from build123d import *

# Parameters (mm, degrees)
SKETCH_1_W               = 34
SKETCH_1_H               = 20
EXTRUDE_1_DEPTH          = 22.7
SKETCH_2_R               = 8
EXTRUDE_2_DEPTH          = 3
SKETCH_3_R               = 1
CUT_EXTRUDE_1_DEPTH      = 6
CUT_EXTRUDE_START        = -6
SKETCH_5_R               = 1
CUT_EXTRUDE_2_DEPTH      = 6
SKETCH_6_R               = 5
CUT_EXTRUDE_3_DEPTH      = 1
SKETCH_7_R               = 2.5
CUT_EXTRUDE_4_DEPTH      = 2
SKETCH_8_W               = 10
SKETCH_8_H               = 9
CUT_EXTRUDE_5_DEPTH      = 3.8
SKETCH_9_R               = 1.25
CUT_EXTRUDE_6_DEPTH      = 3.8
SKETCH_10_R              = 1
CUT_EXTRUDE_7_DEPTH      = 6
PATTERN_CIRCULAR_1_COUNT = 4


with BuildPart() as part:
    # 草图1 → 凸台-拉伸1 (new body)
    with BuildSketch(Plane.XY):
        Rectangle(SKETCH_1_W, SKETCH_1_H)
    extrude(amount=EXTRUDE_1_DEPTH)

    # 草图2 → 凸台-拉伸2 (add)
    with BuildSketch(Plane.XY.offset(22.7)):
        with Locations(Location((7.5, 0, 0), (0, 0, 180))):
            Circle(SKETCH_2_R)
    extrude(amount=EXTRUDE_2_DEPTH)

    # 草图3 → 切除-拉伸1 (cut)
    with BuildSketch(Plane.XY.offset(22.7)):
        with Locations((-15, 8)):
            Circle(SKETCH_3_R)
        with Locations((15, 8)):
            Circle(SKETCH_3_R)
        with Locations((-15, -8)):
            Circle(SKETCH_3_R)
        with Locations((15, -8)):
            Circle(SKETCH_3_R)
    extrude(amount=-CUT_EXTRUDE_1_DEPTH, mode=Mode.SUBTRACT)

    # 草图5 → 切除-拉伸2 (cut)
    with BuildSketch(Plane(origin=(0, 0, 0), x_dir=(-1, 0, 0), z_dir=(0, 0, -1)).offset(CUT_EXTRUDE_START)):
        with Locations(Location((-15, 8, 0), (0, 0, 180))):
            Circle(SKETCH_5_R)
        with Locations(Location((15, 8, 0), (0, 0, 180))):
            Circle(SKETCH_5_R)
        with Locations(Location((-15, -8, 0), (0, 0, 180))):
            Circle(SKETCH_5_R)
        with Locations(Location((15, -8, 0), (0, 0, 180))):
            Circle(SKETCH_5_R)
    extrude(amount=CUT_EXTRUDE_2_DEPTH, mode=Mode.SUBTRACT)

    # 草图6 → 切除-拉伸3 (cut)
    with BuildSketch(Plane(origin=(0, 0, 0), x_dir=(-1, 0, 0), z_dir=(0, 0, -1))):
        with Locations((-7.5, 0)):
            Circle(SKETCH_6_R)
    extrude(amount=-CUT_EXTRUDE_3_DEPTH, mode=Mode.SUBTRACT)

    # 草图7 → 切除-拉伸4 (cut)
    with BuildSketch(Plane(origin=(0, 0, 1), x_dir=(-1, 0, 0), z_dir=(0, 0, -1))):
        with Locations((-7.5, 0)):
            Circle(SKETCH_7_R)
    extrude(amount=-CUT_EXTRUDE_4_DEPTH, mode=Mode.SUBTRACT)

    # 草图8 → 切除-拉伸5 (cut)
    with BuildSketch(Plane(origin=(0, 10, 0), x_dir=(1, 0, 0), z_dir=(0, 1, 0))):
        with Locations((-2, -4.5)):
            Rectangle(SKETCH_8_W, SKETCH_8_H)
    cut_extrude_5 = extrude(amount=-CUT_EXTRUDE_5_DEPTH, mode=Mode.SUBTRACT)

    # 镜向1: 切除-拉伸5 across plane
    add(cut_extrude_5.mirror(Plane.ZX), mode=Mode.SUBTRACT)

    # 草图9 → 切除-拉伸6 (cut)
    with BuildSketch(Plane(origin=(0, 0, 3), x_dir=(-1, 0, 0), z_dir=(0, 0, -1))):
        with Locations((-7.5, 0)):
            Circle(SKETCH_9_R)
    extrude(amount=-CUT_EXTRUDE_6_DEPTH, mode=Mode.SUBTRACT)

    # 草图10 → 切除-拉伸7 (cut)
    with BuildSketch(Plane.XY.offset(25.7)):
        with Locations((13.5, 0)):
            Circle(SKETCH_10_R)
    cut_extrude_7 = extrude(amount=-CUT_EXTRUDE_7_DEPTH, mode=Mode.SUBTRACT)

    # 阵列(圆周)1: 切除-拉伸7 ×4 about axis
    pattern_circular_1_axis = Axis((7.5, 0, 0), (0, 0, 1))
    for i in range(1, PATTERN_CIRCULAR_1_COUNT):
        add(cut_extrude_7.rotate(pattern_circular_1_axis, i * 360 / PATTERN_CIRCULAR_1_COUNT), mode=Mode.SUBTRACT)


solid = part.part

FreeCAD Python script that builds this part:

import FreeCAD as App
import Part
import Sketcher
Q = App.Units.Quantity


def add_polygon(sketch, points):
    """Adds a closed chain of lines whose ends are joined by coincident constraints."""
    first, n = sketch.GeometryCount, len(points)
    for a, b in zip(points, points[1:] + points[:1]):
        sketch.addGeometry(Part.LineSegment(App.Vector(*a, 0), App.Vector(*b, 0)), False)
    for i in range(n):
        sketch.addConstraint(Sketcher.Constraint("Coincident", first + i, 2, first + (i + 1) % n, 1))

doc = App.newDocument("Part")
body = doc.addObject("PartDesign::Body", "Body")

# Sketch on XY plane
sketch1 = body.newObject("Sketcher::SketchObject", "Sketch")
sketch1.AttachmentSupport = (doc.getObject("XY_Plane"), [""])
sketch1.MapMode = "FlatFace"
add_polygon(sketch1, [(-17, 10), (-17, -10), (17, -10), (17, 10)])  # lines 0-3
sketch1.addConstraint([
    Sketcher.Constraint("Vertical", 0),
    Sketcher.Constraint("Horizontal", 1),
    Sketcher.Constraint("Vertical", 2),
    Sketcher.Constraint("Horizontal", 3),
    Sketcher.Constraint("Symmetric", 0, 2, 2, 2, -1, 1),
    Sketcher.Constraint("DistanceX", 1, 1, 1, 2, Q("34 mm")),
    Sketcher.Constraint("DistanceY", 0, 2, 0, 1, Q("20 mm")),
])
pad1 = body.newObject("PartDesign::Pad", "Pad")
pad1.Profile = sketch1
pad1.Length = 22.7

# Sketch on XY plane
sketch2 = body.newObject("Sketcher::SketchObject", "Sketch001")
sketch2.AttachmentSupport = (doc.getObject("XY_Plane"), [""])
sketch2.MapMode = "FlatFace"
sketch2.AttachmentOffset = App.Placement(App.Vector(0, 0, 22.7), App.Rotation())
sketch2.addGeometry(Part.Circle(App.Vector(8, 0, 0), App.Vector(0, 0, 1), 8), False)
sketch2.addConstraint([
    Sketcher.Constraint("PointOnObject", 0, 3, -1),
    Sketcher.Constraint("Diameter", 0, Q("16 mm")),
    Sketcher.Constraint("DistanceX", -1, 1, 0, 3, Q("7.5 mm")),
])
pad2 = body.newObject("PartDesign::Pad", "Pad001")
pad2.Profile = sketch2
pad2.Length = 3

# Sketch on XY plane
sketch3 = body.newObject("Sketcher::SketchObject", "Sketch002")
sketch3.AttachmentSupport = (doc.getObject("XY_Plane"), [""])
sketch3.MapMode = "FlatFace"
sketch3.AttachmentOffset = App.Placement(App.Vector(0, 0, 22.7), App.Rotation())
sketch3.addGeometry([
    Part.Circle(App.Vector(-15, 8, 0), App.Vector(0, 0, 1), 1),
    Part.Circle(App.Vector(15, 8, 0), App.Vector(0, 0, 1), 1),
    Part.Circle(App.Vector(-15, -8, 0), App.Vector(0, 0, 1), 1),
    Part.Circle(App.Vector(15, -8, 0), App.Vector(0, 0, 1), 1),
], False)
sketch3.addConstraint([
    Sketcher.Constraint("Equal", 0, 1),
    Sketcher.Constraint("Equal", 1, 2),
    Sketcher.Constraint("Equal", 2, 3),
    Sketcher.Constraint("Symmetric", 1, 3, 2, 3, -1, 1),
    Sketcher.Constraint("Symmetric", 0, 3, 3, 3, -1, 1),
    Sketcher.Constraint("Symmetric", 0, 3, 1, 3, -2),
    Sketcher.Constraint("Diameter", 0, Q("2 mm")),
    Sketcher.Constraint("DistanceX", 0, 3, -1, 1, Q("15 mm")),
    Sketcher.Constraint("DistanceY", -1, 1, 0, 3, Q("8 mm")),
])
pocket1 = body.newObject("PartDesign::Pocket", "Pocket")
pocket1.Profile = sketch3
pocket1.Length = 6

# Sketch on XY plane
sketch4 = body.newObject("Sketcher::SketchObject", "Sketch003")
sketch4.AttachmentSupport = (doc.getObject("XY_Plane"), [""])
sketch4.MapMode = "FlatFace"
sketch4.AttachmentOffset = App.Placement(App.Vector(0, 0, 6), App.Rotation())
sketch4.addGeometry([
    Part.Circle(App.Vector(15, 8, 0), App.Vector(0, 0, 1), 1),
    Part.Circle(App.Vector(-15, 8, 0), App.Vector(0, 0, 1), 1),
    Part.Circle(App.Vector(15, -8, 0), App.Vector(0, 0, 1), 1),
    Part.Circle(App.Vector(-15, -8, 0), App.Vector(0, 0, 1), 1),
], False)
sketch4.addConstraint([
    Sketcher.Constraint("Equal", 0, 1),
    Sketcher.Constraint("Equal", 1, 2),
    Sketcher.Constraint("Equal", 2, 3),
    Sketcher.Constraint("Symmetric", 1, 3, 2, 3, -1, 1),
    Sketcher.Constraint("Symmetric", 0, 3, 3, 3, -1, 1),
    Sketcher.Constraint("Symmetric", 0, 3, 1, 3, -2),
    Sketcher.Constraint("Diameter", 0, Q("2 mm")),
    Sketcher.Constraint("DistanceX", -1, 1, 0, 3, Q("15 mm")),
    Sketcher.Constraint("DistanceY", -1, 1, 0, 3, Q("8 mm")),
])
pocket2 = body.newObject("PartDesign::Pocket", "Pocket001")
pocket2.Profile = sketch4
pocket2.Length = 6

# Sketch on XY plane
sketch5 = body.newObject("Sketcher::SketchObject", "Sketch004")
sketch5.AttachmentSupport = (doc.getObject("XY_Plane"), [""])
sketch5.MapMode = "FlatFace"
sketch5.addGeometry(Part.Circle(App.Vector(8, 0, 0), App.Vector(0, 0, 1), 5), False)
sketch5.addConstraint([
    Sketcher.Constraint("PointOnObject", 0, 3, -1),
    Sketcher.Constraint("Diameter", 0, Q("10 mm")),
    Sketcher.Constraint("DistanceX", -1, 1, 0, 3, Q("7.5 mm")),
])
pocket3 = body.newObject("PartDesign::Pocket", "Pocket002")
pocket3.Profile = sketch5
pocket3.Length = 1
pocket3.Reversed = True

# Sketch on XY plane
sketch6 = body.newObject("Sketcher::SketchObject", "Sketch005")
sketch6.AttachmentSupport = (doc.getObject("XY_Plane"), [""])
sketch6.MapMode = "FlatFace"
sketch6.AttachmentOffset = App.Placement(App.Vector(0, 0, 1), App.Rotation())
sketch6.addGeometry(Part.Circle(App.Vector(7.5, 0, 0), App.Vector(0, 0, 1), 2.5), False)
sketch6.addConstraint([
    Sketcher.Constraint("PointOnObject", 0, 3, -1),
    Sketcher.Constraint("Diameter", 0, Q("5 mm")),
    Sketcher.Constraint("DistanceX", -1, 1, 0, 3, Q("7.5 mm")),
])
pocket4 = body.newObject("PartDesign::Pocket", "Pocket003")
pocket4.Profile = sketch6
pocket4.Length = 2
pocket4.Reversed = True

# Sketch on XZ plane
sketch7 = body.newObject("Sketcher::SketchObject", "Sketch006")
sketch7.AttachmentSupport = (doc.getObject("XZ_Plane"), [""])
sketch7.MapMode = "FlatFace"
sketch7.AttachmentOffset = App.Placement(App.Vector(0, 0, -10), App.Rotation())
add_polygon(sketch7, [(-7, 0), (-7, 9), (3, 9), (3, 0)])  # lines 0-3
sketch7.addConstraint([
    Sketcher.Constraint("Vertical", 0),
    Sketcher.Constraint("Horizontal", 1),
    Sketcher.Constraint("Vertical", 2),
    Sketcher.Constraint("Horizontal", 3),
    Sketcher.Constraint("PointOnObject", 2, 2, -1),
    Sketcher.Constraint("DistanceX", 1, 1, 1, 2, Q("10 mm")),
    Sketcher.Constraint("DistanceY", 0, 1, 0, 2, Q("9 mm")),
    Sketcher.Constraint("DistanceX", 0, 2, -1, 1, Q("7 mm")),
])
pocket5 = body.newObject("PartDesign::Pocket", "Pocket004")
pocket5.Profile = sketch7
pocket5.Length = 3.8
pocket5.Reversed = True
doc.recompute()

mirrored = body.newObject("PartDesign::Mirrored", "Mirrored")
mirrored.Originals = [pocket5]
mirrored.MirrorPlane = (doc.getObject("XZ_Plane"), [""])
body.Tip = mirrored

# Sketch on XY plane
sketch8 = body.newObject("Sketcher::SketchObject", "Sketch007")
sketch8.AttachmentSupport = (doc.getObject("XY_Plane"), [""])
sketch8.MapMode = "FlatFace"
sketch8.AttachmentOffset = App.Placement(App.Vector(0, 0, 3), App.Rotation())
sketch8.addGeometry(Part.Circle(App.Vector(7.5, 0, 0), App.Vector(0, 0, 1), 1.2), False)
sketch8.addConstraint([
    Sketcher.Constraint("PointOnObject", 0, 3, -1),
    Sketcher.Constraint("Diameter", 0, Q("2.5 mm")),
    Sketcher.Constraint("DistanceX", -1, 1, 0, 3, Q("7.5 mm")),
])
pocket6 = body.newObject("PartDesign::Pocket", "Pocket005")
pocket6.Profile = sketch8
pocket6.Length = 3.8
pocket6.Reversed = True

# Sketch on XY plane
sketch9 = body.newObject("Sketcher::SketchObject", "Sketch008")
sketch9.AttachmentSupport = (doc.getObject("XY_Plane"), [""])
sketch9.MapMode = "FlatFace"
sketch9.AttachmentOffset = App.Placement(App.Vector(0, 0, 25.7), App.Rotation())
sketch9.addGeometry(Part.Circle(App.Vector(13.5, 0, 0), App.Vector(0, 0, 1), 1), False)
sketch9.addConstraint([
    Sketcher.Constraint("PointOnObject", 0, 3, -1),
    Sketcher.Constraint("Diameter", 0, Q("2 mm")),
    Sketcher.Constraint("DistanceX", -1, 1, 0, 3, Q("13.5 mm")),
])
pocket7 = body.newObject("PartDesign::Pocket", "Pocket006")
pocket7.Profile = sketch9
pocket7.Length = 6
doc.recompute()

datumline = body.newObject("PartDesign::Line", "DatumLine")
datumline.Placement = App.Placement(App.Vector(7.5, 0, 0), App.Rotation(App.Vector(0, 0, 1), App.Vector(0, 0, 1)))
polarpattern = body.newObject("PartDesign::PolarPattern", "PolarPattern")
polarpattern.Originals = [pocket7]
polarpattern.Axis = (datumline, [""])
polarpattern.Angle = 360
polarpattern.Occurrences = 4
body.Tip = polarpattern

doc.recompute()
